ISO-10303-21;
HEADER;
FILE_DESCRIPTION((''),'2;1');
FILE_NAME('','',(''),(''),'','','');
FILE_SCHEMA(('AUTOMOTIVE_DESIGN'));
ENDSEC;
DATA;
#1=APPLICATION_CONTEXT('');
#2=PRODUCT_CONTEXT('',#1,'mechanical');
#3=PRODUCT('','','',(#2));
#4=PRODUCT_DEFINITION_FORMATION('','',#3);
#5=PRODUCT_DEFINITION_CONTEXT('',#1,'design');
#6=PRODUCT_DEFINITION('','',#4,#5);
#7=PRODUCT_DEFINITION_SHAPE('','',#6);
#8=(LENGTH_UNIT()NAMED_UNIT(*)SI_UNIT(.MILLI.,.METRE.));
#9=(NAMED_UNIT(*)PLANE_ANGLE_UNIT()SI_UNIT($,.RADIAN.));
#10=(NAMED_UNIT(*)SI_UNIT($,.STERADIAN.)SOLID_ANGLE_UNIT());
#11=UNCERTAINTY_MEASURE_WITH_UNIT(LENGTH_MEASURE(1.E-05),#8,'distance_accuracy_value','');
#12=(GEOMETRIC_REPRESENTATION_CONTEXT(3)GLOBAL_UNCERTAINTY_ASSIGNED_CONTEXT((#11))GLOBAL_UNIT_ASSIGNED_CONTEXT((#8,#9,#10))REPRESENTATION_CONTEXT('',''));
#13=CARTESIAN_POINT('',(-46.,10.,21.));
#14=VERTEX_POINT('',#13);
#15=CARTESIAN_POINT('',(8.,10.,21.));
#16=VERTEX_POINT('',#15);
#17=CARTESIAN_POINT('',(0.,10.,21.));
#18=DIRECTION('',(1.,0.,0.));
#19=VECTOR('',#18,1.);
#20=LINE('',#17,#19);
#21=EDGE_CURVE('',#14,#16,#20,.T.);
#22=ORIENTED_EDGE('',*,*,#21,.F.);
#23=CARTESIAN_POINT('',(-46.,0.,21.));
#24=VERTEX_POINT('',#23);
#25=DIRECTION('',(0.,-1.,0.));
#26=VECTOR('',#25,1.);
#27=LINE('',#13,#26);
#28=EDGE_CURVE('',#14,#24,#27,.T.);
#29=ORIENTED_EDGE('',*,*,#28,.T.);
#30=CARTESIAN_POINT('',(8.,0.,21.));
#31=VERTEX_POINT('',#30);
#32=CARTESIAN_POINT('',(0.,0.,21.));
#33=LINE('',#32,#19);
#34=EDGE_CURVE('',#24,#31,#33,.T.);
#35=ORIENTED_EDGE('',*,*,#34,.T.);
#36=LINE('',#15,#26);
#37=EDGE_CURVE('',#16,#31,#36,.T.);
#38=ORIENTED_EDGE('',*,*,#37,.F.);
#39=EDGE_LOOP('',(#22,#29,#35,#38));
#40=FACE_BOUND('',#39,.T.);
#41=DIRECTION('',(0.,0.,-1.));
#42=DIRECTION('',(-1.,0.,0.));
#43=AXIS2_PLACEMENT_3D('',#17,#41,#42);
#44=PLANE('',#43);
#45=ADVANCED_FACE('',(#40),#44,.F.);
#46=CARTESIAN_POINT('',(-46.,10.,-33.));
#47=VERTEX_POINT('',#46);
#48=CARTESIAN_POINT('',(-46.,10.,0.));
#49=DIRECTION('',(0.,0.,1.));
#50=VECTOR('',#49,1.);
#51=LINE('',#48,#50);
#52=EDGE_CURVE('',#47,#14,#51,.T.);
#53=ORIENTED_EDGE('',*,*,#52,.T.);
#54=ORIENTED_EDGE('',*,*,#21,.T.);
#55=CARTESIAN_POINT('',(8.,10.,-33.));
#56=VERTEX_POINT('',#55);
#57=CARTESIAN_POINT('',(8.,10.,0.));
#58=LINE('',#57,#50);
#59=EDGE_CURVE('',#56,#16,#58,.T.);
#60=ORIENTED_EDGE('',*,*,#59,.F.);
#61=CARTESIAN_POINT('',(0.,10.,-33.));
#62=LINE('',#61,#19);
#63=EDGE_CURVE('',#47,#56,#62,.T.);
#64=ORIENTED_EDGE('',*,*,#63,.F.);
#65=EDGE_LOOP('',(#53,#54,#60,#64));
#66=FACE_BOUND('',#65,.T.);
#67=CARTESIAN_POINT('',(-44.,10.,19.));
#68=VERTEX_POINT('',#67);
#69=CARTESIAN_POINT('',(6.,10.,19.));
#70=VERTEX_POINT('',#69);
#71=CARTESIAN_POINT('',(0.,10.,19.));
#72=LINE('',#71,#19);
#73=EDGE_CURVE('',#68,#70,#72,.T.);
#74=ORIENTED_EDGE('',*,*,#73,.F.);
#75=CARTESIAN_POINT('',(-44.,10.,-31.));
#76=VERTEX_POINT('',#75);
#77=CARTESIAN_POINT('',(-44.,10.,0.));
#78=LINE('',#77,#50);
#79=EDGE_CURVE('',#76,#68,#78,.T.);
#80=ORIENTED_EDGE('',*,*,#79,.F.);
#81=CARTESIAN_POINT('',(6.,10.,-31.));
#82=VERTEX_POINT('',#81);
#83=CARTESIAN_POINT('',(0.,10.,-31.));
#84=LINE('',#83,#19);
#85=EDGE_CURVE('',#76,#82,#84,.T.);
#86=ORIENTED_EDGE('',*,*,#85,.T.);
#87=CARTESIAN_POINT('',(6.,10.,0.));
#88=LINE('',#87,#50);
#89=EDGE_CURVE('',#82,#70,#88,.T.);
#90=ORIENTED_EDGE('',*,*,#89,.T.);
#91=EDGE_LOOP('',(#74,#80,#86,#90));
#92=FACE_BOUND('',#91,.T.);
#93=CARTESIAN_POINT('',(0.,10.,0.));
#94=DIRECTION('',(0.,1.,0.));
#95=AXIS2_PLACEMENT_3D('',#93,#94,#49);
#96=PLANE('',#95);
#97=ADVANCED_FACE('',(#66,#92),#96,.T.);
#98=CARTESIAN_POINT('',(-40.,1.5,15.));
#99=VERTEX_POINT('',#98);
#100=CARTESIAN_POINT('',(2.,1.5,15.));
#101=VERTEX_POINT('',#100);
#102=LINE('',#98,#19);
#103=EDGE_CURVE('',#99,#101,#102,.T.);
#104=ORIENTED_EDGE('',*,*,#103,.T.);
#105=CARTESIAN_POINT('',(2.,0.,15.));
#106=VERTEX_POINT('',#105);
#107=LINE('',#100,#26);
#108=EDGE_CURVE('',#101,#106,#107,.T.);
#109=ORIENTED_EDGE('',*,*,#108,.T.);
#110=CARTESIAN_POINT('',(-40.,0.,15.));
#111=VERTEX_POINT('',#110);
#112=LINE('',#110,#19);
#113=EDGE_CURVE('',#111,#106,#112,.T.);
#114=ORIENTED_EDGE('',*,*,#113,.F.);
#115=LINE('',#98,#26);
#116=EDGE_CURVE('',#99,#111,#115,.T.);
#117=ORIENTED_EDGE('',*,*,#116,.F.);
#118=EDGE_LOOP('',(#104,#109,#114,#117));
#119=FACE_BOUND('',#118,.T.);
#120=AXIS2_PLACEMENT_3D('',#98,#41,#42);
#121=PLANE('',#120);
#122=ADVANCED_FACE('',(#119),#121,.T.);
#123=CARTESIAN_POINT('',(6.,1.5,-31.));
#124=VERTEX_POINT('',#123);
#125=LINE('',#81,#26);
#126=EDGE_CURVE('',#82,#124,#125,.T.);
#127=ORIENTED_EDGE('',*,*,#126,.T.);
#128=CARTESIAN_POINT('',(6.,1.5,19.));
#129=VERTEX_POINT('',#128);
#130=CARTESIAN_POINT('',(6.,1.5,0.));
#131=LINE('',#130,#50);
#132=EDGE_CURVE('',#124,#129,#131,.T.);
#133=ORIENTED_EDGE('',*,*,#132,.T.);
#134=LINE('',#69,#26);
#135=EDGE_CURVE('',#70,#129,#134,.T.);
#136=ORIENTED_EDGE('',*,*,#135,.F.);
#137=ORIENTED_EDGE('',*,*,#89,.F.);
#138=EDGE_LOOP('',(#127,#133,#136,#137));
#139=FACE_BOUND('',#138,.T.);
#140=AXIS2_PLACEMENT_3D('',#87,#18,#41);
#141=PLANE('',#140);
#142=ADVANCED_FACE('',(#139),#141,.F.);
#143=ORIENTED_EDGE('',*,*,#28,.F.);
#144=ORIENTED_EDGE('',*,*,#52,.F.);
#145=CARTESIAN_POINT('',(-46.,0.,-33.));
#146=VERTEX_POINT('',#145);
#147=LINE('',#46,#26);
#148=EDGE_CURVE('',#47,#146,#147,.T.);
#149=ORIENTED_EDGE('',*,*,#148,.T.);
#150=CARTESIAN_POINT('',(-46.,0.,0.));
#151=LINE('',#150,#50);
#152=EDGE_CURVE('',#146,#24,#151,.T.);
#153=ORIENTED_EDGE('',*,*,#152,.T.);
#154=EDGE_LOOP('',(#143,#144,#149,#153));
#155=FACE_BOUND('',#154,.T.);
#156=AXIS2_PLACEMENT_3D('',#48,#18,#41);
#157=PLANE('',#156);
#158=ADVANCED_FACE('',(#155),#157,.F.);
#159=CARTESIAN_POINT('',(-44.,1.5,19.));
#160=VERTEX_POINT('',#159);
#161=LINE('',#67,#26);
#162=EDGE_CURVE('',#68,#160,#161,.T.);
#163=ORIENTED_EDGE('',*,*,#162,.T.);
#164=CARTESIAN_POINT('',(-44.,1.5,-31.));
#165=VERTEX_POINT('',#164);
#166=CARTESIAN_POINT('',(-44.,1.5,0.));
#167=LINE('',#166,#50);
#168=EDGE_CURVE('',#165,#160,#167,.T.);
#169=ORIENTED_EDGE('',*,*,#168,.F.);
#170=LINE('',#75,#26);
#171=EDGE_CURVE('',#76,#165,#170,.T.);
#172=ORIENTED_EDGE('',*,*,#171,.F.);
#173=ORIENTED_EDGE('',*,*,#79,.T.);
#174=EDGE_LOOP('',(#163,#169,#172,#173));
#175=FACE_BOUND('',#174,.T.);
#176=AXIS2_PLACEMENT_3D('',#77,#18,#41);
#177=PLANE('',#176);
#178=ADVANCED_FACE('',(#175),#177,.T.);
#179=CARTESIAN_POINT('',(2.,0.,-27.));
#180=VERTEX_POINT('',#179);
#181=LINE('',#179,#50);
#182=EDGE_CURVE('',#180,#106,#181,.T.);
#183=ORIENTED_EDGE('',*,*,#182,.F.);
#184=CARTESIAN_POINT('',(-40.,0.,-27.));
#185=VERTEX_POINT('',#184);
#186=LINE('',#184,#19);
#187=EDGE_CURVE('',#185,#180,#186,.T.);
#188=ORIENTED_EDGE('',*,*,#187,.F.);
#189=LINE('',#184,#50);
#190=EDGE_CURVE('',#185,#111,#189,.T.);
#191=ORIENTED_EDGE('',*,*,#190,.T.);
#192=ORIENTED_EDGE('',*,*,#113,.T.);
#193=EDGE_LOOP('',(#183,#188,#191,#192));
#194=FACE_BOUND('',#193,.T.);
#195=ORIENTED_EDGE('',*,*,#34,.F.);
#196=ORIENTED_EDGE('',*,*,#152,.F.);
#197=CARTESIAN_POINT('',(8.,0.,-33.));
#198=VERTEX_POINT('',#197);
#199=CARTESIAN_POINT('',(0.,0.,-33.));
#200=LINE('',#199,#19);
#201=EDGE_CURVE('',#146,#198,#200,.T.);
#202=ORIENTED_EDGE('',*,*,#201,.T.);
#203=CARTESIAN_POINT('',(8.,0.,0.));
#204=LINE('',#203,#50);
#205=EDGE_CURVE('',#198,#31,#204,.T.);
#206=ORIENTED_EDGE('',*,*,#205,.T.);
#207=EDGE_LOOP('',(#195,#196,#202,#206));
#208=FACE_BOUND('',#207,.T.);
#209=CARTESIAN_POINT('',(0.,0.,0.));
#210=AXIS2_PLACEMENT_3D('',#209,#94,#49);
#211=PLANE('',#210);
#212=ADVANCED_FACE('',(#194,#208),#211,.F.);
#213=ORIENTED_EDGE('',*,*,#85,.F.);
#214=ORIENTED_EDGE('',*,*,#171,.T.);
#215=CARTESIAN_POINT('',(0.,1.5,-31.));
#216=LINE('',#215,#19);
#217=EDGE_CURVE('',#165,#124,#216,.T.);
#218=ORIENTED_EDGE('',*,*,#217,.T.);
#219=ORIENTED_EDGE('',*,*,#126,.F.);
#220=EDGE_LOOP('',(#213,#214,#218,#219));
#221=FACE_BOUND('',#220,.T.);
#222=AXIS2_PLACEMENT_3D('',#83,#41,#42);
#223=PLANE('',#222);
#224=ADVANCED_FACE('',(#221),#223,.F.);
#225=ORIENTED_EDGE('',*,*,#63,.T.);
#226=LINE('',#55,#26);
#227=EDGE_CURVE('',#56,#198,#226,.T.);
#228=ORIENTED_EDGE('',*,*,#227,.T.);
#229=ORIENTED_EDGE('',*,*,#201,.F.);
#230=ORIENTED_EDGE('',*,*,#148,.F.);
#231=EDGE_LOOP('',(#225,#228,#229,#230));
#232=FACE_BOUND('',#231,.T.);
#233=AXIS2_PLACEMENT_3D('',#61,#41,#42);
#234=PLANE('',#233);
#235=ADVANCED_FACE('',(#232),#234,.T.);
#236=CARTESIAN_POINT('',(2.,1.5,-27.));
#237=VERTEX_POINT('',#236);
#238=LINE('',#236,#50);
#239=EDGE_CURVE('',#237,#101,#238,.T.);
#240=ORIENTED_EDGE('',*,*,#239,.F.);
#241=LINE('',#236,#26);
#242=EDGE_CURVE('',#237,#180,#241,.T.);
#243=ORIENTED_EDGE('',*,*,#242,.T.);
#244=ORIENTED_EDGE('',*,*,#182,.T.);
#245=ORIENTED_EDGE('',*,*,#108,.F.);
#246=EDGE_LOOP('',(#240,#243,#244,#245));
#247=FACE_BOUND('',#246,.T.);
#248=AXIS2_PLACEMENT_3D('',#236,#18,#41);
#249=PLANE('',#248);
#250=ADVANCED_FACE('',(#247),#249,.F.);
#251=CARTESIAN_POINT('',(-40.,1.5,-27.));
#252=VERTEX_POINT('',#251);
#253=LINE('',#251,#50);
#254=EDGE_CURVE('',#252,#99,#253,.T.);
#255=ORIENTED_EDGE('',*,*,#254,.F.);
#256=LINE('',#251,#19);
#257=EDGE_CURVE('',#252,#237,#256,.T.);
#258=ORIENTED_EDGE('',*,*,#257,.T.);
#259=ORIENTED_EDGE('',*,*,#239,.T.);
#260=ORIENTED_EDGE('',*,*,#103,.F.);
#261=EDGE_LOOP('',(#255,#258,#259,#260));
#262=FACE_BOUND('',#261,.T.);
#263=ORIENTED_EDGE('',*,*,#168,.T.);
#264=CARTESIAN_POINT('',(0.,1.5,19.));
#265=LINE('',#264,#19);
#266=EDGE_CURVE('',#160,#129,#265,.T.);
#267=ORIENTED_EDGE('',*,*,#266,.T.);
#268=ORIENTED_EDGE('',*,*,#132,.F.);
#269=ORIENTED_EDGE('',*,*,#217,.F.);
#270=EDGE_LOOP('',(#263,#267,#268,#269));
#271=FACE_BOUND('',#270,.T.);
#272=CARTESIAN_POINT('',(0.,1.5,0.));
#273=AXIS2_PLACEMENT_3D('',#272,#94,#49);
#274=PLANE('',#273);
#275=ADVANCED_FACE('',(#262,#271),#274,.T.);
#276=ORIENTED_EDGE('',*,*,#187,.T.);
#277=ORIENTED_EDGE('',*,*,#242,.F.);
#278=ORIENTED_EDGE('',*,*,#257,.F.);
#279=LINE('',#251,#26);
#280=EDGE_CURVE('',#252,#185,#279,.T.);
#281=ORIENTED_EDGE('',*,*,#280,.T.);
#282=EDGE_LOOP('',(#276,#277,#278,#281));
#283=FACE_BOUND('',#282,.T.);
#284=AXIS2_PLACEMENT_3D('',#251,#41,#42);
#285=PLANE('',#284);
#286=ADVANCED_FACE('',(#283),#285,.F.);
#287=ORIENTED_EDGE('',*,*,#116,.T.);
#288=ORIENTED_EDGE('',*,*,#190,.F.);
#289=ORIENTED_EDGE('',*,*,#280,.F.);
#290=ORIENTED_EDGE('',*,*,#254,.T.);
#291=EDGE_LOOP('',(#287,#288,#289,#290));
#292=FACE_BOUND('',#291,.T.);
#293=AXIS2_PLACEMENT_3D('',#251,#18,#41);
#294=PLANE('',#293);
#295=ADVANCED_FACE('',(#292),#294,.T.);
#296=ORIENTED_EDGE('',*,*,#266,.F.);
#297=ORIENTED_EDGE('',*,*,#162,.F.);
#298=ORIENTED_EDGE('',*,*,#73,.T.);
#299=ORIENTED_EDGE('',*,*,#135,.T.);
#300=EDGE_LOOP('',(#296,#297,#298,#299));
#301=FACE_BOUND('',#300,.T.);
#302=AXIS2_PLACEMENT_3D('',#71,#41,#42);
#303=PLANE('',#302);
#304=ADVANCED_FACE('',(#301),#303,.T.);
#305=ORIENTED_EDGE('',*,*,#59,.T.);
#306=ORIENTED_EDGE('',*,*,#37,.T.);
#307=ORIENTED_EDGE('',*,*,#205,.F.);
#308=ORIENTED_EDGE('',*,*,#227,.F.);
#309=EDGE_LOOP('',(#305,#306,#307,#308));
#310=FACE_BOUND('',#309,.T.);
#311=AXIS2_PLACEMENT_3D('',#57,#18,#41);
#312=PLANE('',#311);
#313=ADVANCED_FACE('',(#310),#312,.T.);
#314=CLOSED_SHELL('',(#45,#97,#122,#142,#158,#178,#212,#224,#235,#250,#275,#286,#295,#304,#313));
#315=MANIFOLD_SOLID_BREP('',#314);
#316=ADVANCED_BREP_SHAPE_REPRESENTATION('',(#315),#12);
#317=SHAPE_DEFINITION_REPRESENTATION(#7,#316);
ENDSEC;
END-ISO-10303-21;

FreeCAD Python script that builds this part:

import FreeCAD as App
import Part
import Sketcher

V = App.Vector

doc = App.newDocument("Part")
body = doc.addObject("PartDesign::Body", "Body")

sketch1 = doc.addObject("Sketcher::SketchObject", "Sketch")
body.addObject(sketch1)
sketch1.AttachmentSupport = (doc.XZ_Plane, [""])
sketch1.MapMode = "FlatFace"
sketch1.addGeometry([
    Part.LineSegment(V(-44, -31, 0), V(-44, 19, 0)),
    Part.LineSegment(V(-44, 19, 0), V(6, 19, 0)),
    Part.LineSegment(V(6, 19, 0), V(6, -31, 0)),
    Part.LineSegment(V(6, -31, 0), V(-44, -31, 0)),
    Part.LineSegment(V(2, 15, 0), V(-40, 15, 0)),
    Part.LineSegment(V(-40, 15, 0), V(-40, -27, 0)),
    Part.LineSegment(V(-40, -27, 0), V(2, -27, 0)),
    Part.LineSegment(V(2, -27, 0), V(2, 15, 0)),
], False)
sketch1.addConstraint([
    Sketcher.Constraint("Coincident", 0, 2, 1, 1),
    Sketcher.Constraint("Coincident", 1, 2, 2, 1),
    Sketcher.Constraint("Coincident", 2, 2, 3, 1),
    Sketcher.Constraint("Coincident", 3, 2, 0, 1),
    Sketcher.Constraint("Coincident", 4, 2, 5, 1),
    Sketcher.Constraint("Coincident", 5, 2, 6, 1),
    Sketcher.Constraint("Coincident", 6, 2, 7, 1),
    Sketcher.Constraint("Coincident", 7, 2, 4, 1),
    Sketcher.Constraint("Vertical", 0),
    Sketcher.Constraint("Horizontal", 1),
    Sketcher.Constraint("Vertical", 2),
    Sketcher.Constraint("Horizontal", 3),
    Sketcher.Constraint("Horizontal", 4),
    Sketcher.Constraint("Vertical", 5),
    Sketcher.Constraint("Horizontal", 6),
    Sketcher.Constraint("Vertical", 7),
    Sketcher.Constraint("Equal", 3, 0),
    Sketcher.Constraint("Equal", 6, 5),
    Sketcher.Constraint("DistanceX", 1, 1, 1, 2, 50.0),
    Sketcher.Constraint("DistanceX", 4, 2, 4, 1, 42.0),
    Sketcher.Constraint("DistanceX", 0, 2, -1, 1, 44.0),
    Sketcher.Constraint("DistanceY", -1, 1, 0, 2, 19.0),
    Sketcher.Constraint("DistanceX", 4, 2, -1, 1, 40.0),
    Sketcher.Constraint("DistanceY", -1, 1, 4, 2, 15.0),
])
pad1 = doc.addObject("PartDesign::Pad", "Pad")
body.addObject(pad1)
pad1.Profile = sketch1
pad1.Length = 1.5
pad1.Reversed = True

sketch2 = doc.addObject("Sketcher::SketchObject", "Sketch001")
body.addObject(sketch2)
sketch2.AttachmentSupport = (doc.XZ_Plane, [""])
sketch2.MapMode = "FlatFace"
sketch2.addGeometry([
    Part.LineSegment(V(-46, -33, 0), V(-46, 21, 0)),
    Part.LineSegment(V(-46, 21, 0), V(8, 21, 0)),
    Part.LineSegment(V(8, 21, 0), V(8, -33, 0)),
    Part.LineSegment(V(8, -33, 0), V(-46, -33, 0)),
    Part.LineSegment(V(6, 19, 0), V(-44, 19, 0)),
    Part.LineSegment(V(-44, 19, 0), V(-44, -31, 0)),
    Part.LineSegment(V(-44, -31, 0), V(6, -31, 0)),
    Part.LineSegment(V(6, -31, 0), V(6, 19, 0)),
], False)
sketch2.addConstraint([
    Sketcher.Constraint("Coincident", 0, 2, 1, 1),
    Sketcher.Constraint("Coincident", 1, 2, 2, 1),
    Sketcher.Constraint("Coincident", 2, 2, 3, 1),
    Sketcher.Constraint("Coincident", 3, 2, 0, 1),
    Sketcher.Constraint("Coincident", 4, 2, 5, 1),
    Sketcher.Constraint("Coincident", 5, 2, 6, 1),
    Sketcher.Constraint("Coincident", 6, 2, 7, 1),
    Sketcher.Constraint("Coincident", 7, 2, 4, 1),
    Sketcher.Constraint("Vertical", 0),
    Sketcher.Constraint("Horizontal", 1),
    Sketcher.Constraint("Vertical", 2),
    Sketcher.Constraint("Horizontal", 3),
    Sketcher.Constraint("Horizontal", 4),
    Sketcher.Constraint("Vertical", 5),
    Sketcher.Constraint("Horizontal", 6),
    Sketcher.Constraint("Vertical", 7),
    Sketcher.Constraint("Equal", 3, 0),
    Sketcher.Constraint("Equal", 6, 5),
    Sketcher.Constraint("DistanceX", 1, 1, 1, 2, 54.0),
    Sketcher.Constraint("DistanceX", 4, 2, 4, 1, 50.0),
    Sketcher.Constraint("DistanceX", 0, 2, -1, 1, 46.0),
    Sketcher.Constraint("DistanceY", -1, 1, 0, 2, 21.0),
    Sketcher.Constraint("DistanceX", 4, 2, -1, 1, 44.0),
    Sketcher.Constraint("DistanceY", -1, 1, 4, 2, 19.0),
])
pad2 = doc.addObject("PartDesign::Pad", "Pad001")
body.addObject(pad2)
pad2.Profile = sketch2
pad2.Length = 10
pad2.Reversed = True

doc.recompute()
